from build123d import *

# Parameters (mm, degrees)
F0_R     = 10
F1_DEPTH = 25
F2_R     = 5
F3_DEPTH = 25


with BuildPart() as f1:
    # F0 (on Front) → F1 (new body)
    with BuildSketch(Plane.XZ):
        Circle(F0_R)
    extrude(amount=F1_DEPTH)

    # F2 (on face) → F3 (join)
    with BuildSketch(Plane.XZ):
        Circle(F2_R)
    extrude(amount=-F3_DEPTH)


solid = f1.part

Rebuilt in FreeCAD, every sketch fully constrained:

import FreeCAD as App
import Part
import Sketcher
Q = App.Units.Quantity

doc = App.newDocument("Part")
body = doc.addObject("PartDesign::Body", "Body")

sketch1 = doc.addObject("Sketcher::SketchObject", "Sketch")
body.addObject(sketch1)
sketch1.AttachmentSupport = (doc.XZ_Plane, [""])
sketch1.MapMode = "FlatFace"
sketch1.addGeometry(Part.Circle(App.Vector(0, 0, 0), App.Vector(0, 0, 1), 10), False)
sketch1.addConstraint([
    Sketcher.Constraint("Coincident", 0, 3, -1, 1),
    Sketcher.Constraint("Diameter", 0, Q("20 mm")),
])
pad1 = doc.addObject("PartDesign::Pad", "Pad")
body.addObject(pad1)
pad1.Profile = sketch1
pad1.Length = 25

sketch2 = doc.addObject("Sketcher::SketchObject", "Sketch001")
body.addObject(sketch2)
sketch2.AttachmentSupport = (doc.XZ_Plane, [""])
sketch2.MapMode = "FlatFace"
sketch2.addGeometry(Part.Circle(App.Vector(0, 0, 0), App.Vector(0, 0, 1), 5), False)
sketch2.addConstraint([
    Sketcher.Constraint("Coincident", 0, 3, -1, 1),
    Sketcher.Constraint("Diameter", 0, Q("10 mm")),
])
pad2 = doc.addObject("PartDesign::Pad", "Pad001")
body.addObject(pad2)
pad2.Profile = sketch2
pad2.Length = 25
pad2.Reversed = True

doc.recompute()
